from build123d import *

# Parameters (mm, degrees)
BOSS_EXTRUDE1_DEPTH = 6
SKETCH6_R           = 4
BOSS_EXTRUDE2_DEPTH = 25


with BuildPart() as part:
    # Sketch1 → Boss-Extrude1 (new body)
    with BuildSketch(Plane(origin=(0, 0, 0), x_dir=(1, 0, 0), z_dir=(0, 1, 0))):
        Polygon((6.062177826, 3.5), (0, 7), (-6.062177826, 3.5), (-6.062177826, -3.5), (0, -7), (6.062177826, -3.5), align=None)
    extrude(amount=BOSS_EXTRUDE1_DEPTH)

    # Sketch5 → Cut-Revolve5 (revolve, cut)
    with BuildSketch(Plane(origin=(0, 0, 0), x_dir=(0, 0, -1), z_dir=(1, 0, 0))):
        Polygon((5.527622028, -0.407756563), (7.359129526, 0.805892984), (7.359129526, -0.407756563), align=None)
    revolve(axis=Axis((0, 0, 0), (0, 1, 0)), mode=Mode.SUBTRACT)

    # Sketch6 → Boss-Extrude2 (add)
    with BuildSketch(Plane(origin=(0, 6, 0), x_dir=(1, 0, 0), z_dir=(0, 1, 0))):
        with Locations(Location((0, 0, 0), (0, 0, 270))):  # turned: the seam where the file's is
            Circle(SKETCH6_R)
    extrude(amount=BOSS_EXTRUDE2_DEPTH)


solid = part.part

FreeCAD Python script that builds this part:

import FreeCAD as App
import Part
import Sketcher
Q = App.Units.Quantity


def add_polygon(sketch, points):
    """Adds a closed chain of lines whose ends are joined by coincident constraints."""
    first, n = sketch.GeometryCount, len(points)
    for a, b in zip(points, points[1:] + points[:1]):
        sketch.addGeometry(Part.LineSegment(App.Vector(*a, 0), App.Vector(*b, 0)), False)
    for i in range(n):
        sketch.addConstraint(Sketcher.Constraint("Coincident", first + i, 2, first + (i + 1) % n, 1))

doc = App.newDocument("Part")
body = doc.addObject("PartDesign::Body", "Body")

# Sketch on XZ plane
sketch1 = doc.addObject("Sketcher::SketchObject", "Sketch")
body.addObject(sketch1)
sketch1.AttachmentSupport = (doc.XZ_Plane, [""])
sketch1.MapMode = "FlatFace"
add_polygon(sketch1, [(6.062178, -3.5), (0, -7), (-6.062178, -3.5), (-6.062178, 3.5), (0, 7), (6.062178, 3.5)])  # lines 0-5
sketch1.addConstraint(Sketcher.Constraint("Vertical", 2))
sketch1.addConstraint(Sketcher.Constraint("Vertical", 5))
sketch1.addConstraint(Sketcher.Constraint("Symmetric", 0, 2, 3, 2, -1, 1))
sketch1.addConstraint(Sketcher.Constraint("Symmetric", 1, 2, 4, 2, -1, 1))
sketch1.addConstraint(Sketcher.Constraint("PointOnObject", 0, 2, -2))
sketch1.addConstraint(Sketcher.Constraint("Parallel", 0, 3))
sketch1.addConstraint(Sketcher.Constraint("Horizontal", 2, 2, 4, 2))
sketch1.addConstraint(Sketcher.Constraint("DistanceY", 2, 1, 2, 2, 7.0))
sketch1.addConstraint(Sketcher.Constraint("Angle", 0, Q("-150 deg")))
sketch1.addConstraint(Sketcher.Constraint("Distance", 0, 7.0))
pad1 = doc.addObject("PartDesign::Pad", "Pad")
body.addObject(pad1)
pad1.Profile = sketch1
pad1.Length = 6
pad1.Reversed = True

# Sketch on YZ plane
sketch2 = doc.addObject("Sketcher::SketchObject", "Sketch001")
body.addObject(sketch2)
sketch2.AttachmentSupport = (doc.YZ_Plane, [""])
sketch2.MapMode = "FlatFace"
add_polygon(sketch2, [(0.805893, -7.35913), (-0.407757, -5.527622), (-0.407757, -7.35913)])  # lines 0-2
sketch2.addConstraint(Sketcher.Constraint("Vertical", 1))
sketch2.addConstraint(Sketcher.Constraint("Horizontal", 2))
sketch2.addConstraint(Sketcher.Constraint("DistanceX", 2, 1, 2, 2, 1.21365))
sketch2.addConstraint(Sketcher.Constraint("DistanceY", 1, 2, 1, 1, 1.831507))
sketch2.addConstraint(Sketcher.Constraint("DistanceY", 1, 2, -1, 1, 7.35913))
sketch2.addConstraint(Sketcher.Constraint("DistanceX", 0, 2, -1, 1, 0.407757))
groove = doc.addObject("PartDesign::Groove", "Groove")
body.addObject(groove)
groove.Profile = sketch2
groove.ReferenceAxis = (sketch2, ["H_Axis"])
groove.Angle = 360

# Sketch on XZ plane
sketch3 = doc.addObject("Sketcher::SketchObject", "Sketch002")
body.addObject(sketch3)
sketch3.AttachmentSupport = (doc.XZ_Plane, [""])
sketch3.MapMode = "FlatFace"
sketch3.AttachmentOffset = App.Placement(App.Vector(0, 0, -6), App.Rotation())
sketch3.addGeometry(Part.Circle(App.Vector(0, 0, 0), App.Vector(0, 0, 1), 4), False)
sketch3.addConstraint(Sketcher.Constraint("Coincident", 0, 3, -1, 1))
sketch3.addConstraint(Sketcher.Constraint("Diameter", 0, 8.0))
pad2 = doc.addObject("PartDesign::Pad", "Pad001")
body.addObject(pad2)
pad2.Profile = sketch3
pad2.Length = 25
pad2.Reversed = True

doc.recompute()
